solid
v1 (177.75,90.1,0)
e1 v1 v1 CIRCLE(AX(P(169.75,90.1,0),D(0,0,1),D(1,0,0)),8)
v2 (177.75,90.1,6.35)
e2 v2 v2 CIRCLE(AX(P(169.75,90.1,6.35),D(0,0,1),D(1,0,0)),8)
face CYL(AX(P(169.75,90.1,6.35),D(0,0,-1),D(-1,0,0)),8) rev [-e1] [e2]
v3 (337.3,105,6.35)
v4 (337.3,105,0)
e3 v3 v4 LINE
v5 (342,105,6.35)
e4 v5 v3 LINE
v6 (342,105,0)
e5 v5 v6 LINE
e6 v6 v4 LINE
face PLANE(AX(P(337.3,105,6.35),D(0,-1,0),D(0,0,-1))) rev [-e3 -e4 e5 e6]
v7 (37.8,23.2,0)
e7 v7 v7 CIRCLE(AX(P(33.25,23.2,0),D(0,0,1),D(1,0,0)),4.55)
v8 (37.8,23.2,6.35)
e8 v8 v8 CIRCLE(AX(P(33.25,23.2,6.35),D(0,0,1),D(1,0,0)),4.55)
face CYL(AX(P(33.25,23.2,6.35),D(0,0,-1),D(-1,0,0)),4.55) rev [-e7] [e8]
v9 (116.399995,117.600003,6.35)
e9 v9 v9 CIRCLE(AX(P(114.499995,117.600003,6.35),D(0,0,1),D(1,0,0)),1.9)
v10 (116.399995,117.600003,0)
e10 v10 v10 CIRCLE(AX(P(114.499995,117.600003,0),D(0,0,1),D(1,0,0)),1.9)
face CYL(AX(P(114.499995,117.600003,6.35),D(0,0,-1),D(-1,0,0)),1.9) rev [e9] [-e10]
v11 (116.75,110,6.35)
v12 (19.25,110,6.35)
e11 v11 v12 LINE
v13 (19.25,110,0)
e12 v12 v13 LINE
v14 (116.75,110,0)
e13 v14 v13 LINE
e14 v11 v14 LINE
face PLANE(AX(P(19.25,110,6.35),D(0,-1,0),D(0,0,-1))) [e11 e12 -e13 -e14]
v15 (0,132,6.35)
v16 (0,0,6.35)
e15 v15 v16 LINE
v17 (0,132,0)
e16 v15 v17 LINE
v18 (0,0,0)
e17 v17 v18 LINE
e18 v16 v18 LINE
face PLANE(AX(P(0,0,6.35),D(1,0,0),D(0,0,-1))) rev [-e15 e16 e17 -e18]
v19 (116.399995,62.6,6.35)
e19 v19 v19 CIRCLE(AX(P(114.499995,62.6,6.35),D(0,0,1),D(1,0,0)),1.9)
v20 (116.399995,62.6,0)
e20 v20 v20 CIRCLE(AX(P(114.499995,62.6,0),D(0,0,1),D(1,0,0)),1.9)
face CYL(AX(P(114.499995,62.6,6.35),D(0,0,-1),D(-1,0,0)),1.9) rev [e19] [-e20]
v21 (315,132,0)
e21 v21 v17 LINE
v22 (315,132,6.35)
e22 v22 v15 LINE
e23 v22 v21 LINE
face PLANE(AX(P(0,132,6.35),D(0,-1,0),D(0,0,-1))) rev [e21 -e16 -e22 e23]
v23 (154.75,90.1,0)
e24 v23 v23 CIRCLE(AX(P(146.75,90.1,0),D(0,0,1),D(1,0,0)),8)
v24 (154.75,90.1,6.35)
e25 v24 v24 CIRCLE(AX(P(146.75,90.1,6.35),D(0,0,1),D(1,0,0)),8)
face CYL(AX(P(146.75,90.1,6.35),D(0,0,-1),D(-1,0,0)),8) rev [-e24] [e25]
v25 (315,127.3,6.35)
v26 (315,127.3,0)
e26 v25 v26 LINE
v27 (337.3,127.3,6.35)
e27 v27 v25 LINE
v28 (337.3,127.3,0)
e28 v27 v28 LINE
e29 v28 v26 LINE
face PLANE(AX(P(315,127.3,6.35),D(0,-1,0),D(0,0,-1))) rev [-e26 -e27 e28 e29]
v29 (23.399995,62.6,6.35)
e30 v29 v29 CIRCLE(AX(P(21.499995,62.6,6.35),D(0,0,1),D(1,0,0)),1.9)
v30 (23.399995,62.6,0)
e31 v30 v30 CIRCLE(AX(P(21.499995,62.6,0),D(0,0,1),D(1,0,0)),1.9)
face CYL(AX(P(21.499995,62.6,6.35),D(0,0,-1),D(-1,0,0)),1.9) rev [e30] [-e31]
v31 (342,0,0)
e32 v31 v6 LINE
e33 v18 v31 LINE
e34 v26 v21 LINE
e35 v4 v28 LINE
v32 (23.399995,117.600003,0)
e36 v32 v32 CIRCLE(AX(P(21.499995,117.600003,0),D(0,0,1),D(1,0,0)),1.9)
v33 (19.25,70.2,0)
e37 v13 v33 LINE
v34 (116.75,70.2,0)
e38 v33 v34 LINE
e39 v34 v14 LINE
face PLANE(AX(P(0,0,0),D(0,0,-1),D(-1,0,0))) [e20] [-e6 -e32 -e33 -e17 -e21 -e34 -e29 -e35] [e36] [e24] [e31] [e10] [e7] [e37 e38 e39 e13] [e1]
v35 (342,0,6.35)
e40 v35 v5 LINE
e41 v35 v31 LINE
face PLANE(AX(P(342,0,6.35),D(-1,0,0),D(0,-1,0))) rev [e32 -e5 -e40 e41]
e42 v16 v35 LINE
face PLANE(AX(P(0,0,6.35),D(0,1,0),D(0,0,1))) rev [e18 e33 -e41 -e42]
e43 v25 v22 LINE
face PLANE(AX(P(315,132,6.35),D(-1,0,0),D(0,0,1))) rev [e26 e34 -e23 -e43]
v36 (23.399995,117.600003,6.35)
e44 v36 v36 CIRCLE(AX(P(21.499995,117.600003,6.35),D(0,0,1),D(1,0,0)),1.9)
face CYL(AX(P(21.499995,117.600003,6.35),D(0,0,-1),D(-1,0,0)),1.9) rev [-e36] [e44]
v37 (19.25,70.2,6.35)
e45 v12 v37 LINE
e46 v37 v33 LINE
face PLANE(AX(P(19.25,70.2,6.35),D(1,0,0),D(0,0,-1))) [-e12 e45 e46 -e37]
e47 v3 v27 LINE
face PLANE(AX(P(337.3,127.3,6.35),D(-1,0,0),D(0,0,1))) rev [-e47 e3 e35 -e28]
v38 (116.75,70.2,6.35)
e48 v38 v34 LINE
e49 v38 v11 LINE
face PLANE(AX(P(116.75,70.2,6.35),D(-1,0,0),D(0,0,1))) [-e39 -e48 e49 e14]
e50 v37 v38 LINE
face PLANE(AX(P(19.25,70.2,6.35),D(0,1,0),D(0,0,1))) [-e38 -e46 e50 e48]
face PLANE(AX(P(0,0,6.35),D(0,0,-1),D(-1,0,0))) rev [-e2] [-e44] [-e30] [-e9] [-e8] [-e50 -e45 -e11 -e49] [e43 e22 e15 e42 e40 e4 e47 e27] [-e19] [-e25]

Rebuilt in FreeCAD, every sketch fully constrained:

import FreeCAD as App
import Part
import Sketcher


def add_polygon(sketch, points):
    """Adds a closed chain of lines whose ends are joined by coincident constraints."""
    first, n = sketch.GeometryCount, len(points)
    for a, b in zip(points, points[1:] + points[:1]):
        sketch.addGeometry(Part.LineSegment(App.Vector(*a, 0), App.Vector(*b, 0)), False)
    for i in range(n):
        sketch.addConstraint(Sketcher.Constraint("Coincident", first + i, 2, first + (i + 1) % n, 1))

doc = App.newDocument("Part")
params = doc.addObject("Spreadsheet::Sheet", "Params")
for row, (alias, value) in enumerate([
    ("sketch1_diameter", "16 mm"),
    ("sketch1_diameter2", "9.1 mm"),
    ("sketch1_diameter3", "3.8 mm"),
    ("sketch1_width", "342 mm"),
    ("sketch1_width2", "315 mm"),
    ("pad1_length", "6.35 mm"),
], start=1):
    params.set(f"A{row}", alias)
    params.set(f"B{row}", "=" + value)
    params.setAlias(f"B{row}", alias)

body = doc.addObject("PartDesign::Body", "Body")

# Sketch on XY plane
sketch1 = body.newObject("Sketcher::SketchObject", "Sketch")
sketch1.AttachmentSupport = (doc.getObject("XY_Plane"), [""])
sketch1.MapMode = "FlatFace"
add_polygon(sketch1, [(0, 0), (342, 0), (342, 105), (337.3, 105), (337.3, 127.3), (315, 127.3), (315, 132), (0, 132)])  # lines 0-7
sketch1.addGeometry(Part.Circle(App.Vector(33.2, 23.2, 0), App.Vector(0, 0, 1), 4.5), False)  # 8
sketch1.addGeometry(Part.Circle(App.Vector(21.5, 62.6, 0), App.Vector(0, 0, 1), 1.9), False)  # 9
sketch1.addGeometry(Part.Circle(App.Vector(114.5, 62.6, 0), App.Vector(0, 0, 1), 1.9), False)  # 10
add_polygon(sketch1, [(116.8, 70.2), (19.2, 70.2), (19.2, 110), (116.8, 110)])  # lines 11-14
sketch1.addGeometry(Part.Circle(App.Vector(21.5, 117.6, 0), App.Vector(0, 0, 1), 1.9), False)  # 15
sketch1.addGeometry(Part.Circle(App.Vector(146.8, 90.1, 0), App.Vector(0, 0, 1), 8), False)  # 16
sketch1.addGeometry(Part.Circle(App.Vector(169.8, 90.1, 0), App.Vector(0, 0, 1), 8), False)  # 17
sketch1.addGeometry(Part.Circle(App.Vector(114.5, 117.6, 0), App.Vector(0, 0, 1), 1.9), False)  # 18
sketch1.addConstraint(Sketcher.Constraint("Horizontal", 0))
sketch1.addConstraint(Sketcher.Constraint("Vertical", 1))
sketch1.addConstraint(Sketcher.Constraint("Horizontal", 2))
sketch1.addConstraint(Sketcher.Constraint("Vertical", 3))
sketch1.addConstraint(Sketcher.Constraint("Horizontal", 4))
sketch1.addConstraint(Sketcher.Constraint("Vertical", 5))
sketch1.addConstraint(Sketcher.Constraint("Horizontal", 6))
sketch1.addConstraint(Sketcher.Constraint("Vertical", 7))
sketch1.addConstraint(Sketcher.Constraint("Horizontal", 11))
sketch1.addConstraint(Sketcher.Constraint("Vertical", 12))
sketch1.addConstraint(Sketcher.Constraint("Horizontal", 13))
sketch1.addConstraint(Sketcher.Constraint("Vertical", 14))
sketch1.addConstraint(Sketcher.Constraint("Coincident", 7, 2, -1, 1))
sketch1.addConstraint(Sketcher.Constraint("Equal", 9, 10))
sketch1.addConstraint(Sketcher.Constraint("Equal", 10, 15))
sketch1.addConstraint(Sketcher.Constraint("Equal", 16, 17))
sketch1.addConstraint(Sketcher.Constraint("Equal", 15, 18))
sketch1.addConstraint(Sketcher.Constraint("Horizontal", 9, 3, 10, 3))
sketch1.addConstraint(Sketcher.Constraint("Horizontal", 16, 3, 17, 3))
sketch1.addConstraint(Sketcher.Constraint("Horizontal", 15, 3, 18, 3))
sketch1.addConstraint(Sketcher.Constraint("Vertical", 9, 3, 15, 3))
sketch1.addConstraint(Sketcher.Constraint("Vertical", 10, 3, 18, 3))
sketch1.addConstraint(Sketcher.Constraint("Equal", 4, 3))
sketch1.addConstraint(Sketcher.Constraint("Equal", 2, 5))
sketch1.addConstraint(Sketcher.Constraint("Diameter", 16, 16.0))
sketch1.addConstraint(Sketcher.Constraint("Diameter", 8, 9.1))
sketch1.addConstraint(Sketcher.Constraint("Diameter", 9, 3.8))
sketch1.addConstraint(Sketcher.Constraint("DistanceX", 0, 1, 0, 2, 342.0))
sketch1.addConstraint(Sketcher.Constraint("DistanceX", 6, 2, 6, 1, 315.0))
sketch1.addConstraint(Sketcher.Constraint("DistanceY", 1, 1, 1, 2, 105.0))
sketch1.addConstraint(Sketcher.Constraint("DistanceX", 2, 2, 2, 1, 4.7))
sketch1.addConstraint(Sketcher.Constraint("DistanceX", 11, 2, 11, 1, 97.5))
sketch1.addConstraint(Sketcher.Constraint("DistanceY", 12, 1, 12, 2, 39.8))
sketch1.addConstraint(Sketcher.Constraint("DistanceY", -1, 1, 12, 2, 110.0))
sketch1.addConstraint(Sketcher.Constraint("DistanceX", 9, 3, 10, 3, 93.0))
sketch1.addConstraint(Sketcher.Constraint("DistanceX", 16, 3, 17, 3, 23.0))
sketch1.addConstraint(Sketcher.Constraint("DistanceX", 11, 2, 8, 3, 14.0))
sketch1.addConstraint(Sketcher.Constraint("DistanceY", 8, 3, 11, 2, 47.0))
sketch1.addConstraint(Sketcher.Constraint("DistanceX", 13, 2, 16, 3, 30.0))
sketch1.addConstraint(Sketcher.Constraint("DistanceY", -1, 1, 9, 3, 62.6))
sketch1.addConstraint(Sketcher.Constraint("DistanceY", -1, 1, 16, 3, 90.1))
sketch1.addConstraint(Sketcher.Constraint("DistanceX", -1, 1, 8, 3, 33.25))
sketch1.addConstraint(Sketcher.Constraint("DistanceX", -1, 1, 9, 3, 21.499995))
sketch1.addConstraint(Sketcher.Constraint("DistanceY", -1, 1, 15, 3, 117.600003))
sketch1.setExpression("Constraints[36]", "Params.sketch1_diameter")
sketch1.setExpression("Constraints[37]", "Params.sketch1_diameter2")
sketch1.setExpression("Constraints[38]", "Params.sketch1_diameter3")
sketch1.setExpression("Constraints[39]", "Params.sketch1_width")
sketch1.setExpression("Constraints[40]", "Params.sketch1_width2")
pad1 = body.newObject("PartDesign::Pad", "Pad")
pad1.Profile = sketch1
pad1.setExpression("Length", "Params.pad1_length")

doc.recompute()
